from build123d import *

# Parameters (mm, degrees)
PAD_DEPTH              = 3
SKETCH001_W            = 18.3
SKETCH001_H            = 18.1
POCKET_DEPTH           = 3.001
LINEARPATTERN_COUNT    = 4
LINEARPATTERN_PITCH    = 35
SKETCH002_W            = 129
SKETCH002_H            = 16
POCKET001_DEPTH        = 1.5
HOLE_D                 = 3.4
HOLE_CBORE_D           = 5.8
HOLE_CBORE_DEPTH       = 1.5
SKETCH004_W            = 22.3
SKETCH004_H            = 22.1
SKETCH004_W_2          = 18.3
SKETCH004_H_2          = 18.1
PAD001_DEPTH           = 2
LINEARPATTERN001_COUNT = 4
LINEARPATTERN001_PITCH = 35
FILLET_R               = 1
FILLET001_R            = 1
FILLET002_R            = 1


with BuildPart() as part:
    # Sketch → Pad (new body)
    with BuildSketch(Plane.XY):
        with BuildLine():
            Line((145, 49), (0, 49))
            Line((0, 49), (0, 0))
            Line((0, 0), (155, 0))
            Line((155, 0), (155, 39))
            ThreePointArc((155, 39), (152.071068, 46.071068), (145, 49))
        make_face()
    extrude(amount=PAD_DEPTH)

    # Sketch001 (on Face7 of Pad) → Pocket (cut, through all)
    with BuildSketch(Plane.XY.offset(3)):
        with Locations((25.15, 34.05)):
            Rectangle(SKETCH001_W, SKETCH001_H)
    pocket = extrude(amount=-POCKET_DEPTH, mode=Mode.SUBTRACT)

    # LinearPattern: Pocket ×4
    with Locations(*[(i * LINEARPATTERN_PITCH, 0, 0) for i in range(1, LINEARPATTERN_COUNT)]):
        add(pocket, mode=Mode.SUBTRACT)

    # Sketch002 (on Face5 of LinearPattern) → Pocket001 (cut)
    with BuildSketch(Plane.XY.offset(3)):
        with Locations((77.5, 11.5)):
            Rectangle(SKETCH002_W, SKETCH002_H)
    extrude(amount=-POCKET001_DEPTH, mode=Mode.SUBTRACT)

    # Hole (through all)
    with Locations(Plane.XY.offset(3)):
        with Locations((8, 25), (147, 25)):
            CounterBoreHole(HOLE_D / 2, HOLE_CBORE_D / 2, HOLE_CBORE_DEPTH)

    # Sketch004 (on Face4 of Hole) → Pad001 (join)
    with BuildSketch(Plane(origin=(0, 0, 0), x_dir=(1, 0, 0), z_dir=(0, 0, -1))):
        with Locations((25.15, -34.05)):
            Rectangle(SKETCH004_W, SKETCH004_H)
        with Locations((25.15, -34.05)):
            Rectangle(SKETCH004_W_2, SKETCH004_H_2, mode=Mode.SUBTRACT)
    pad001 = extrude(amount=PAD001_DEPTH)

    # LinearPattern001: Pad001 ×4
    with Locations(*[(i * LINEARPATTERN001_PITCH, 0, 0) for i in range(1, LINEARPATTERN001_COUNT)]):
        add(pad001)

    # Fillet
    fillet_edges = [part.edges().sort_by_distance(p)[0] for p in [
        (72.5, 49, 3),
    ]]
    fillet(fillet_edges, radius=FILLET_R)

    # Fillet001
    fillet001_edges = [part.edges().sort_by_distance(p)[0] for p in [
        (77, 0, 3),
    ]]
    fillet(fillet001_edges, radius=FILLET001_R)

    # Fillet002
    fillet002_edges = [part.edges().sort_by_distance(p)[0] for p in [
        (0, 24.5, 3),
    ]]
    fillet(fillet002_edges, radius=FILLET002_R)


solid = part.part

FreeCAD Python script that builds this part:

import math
import FreeCAD as App
import Part
import Sketcher
Q = App.Units.Quantity


def edges_at(feature, points):
    """Names of the edges that pass closest to the given points."""
    edges = feature.Shape.Edges
    near = lambda p: min(range(len(edges)), key=lambda i: edges[i].distToShape(Part.Vertex(*p))[0])
    return sorted({f"Edge{near(p) + 1}" for p in points})


def add_polygon(sketch, points):
    """Adds a closed chain of lines whose ends are joined by coincident constraints."""
    first, n = sketch.GeometryCount, len(points)
    for a, b in zip(points, points[1:] + points[:1]):
        sketch.addGeometry(Part.LineSegment(App.Vector(*a, 0), App.Vector(*b, 0)), False)
    for i in range(n):
        sketch.addConstraint(Sketcher.Constraint("Coincident", first + i, 2, first + (i + 1) % n, 1))

doc = App.newDocument("Part")
body = doc.addObject("PartDesign::Body", "Body")

# Sketch on XY plane
sketch1 = body.newObject("Sketcher::SketchObject", "Sketch")
sketch1.AttachmentSupport = (doc.getObject("XY_Plane"), [""])
sketch1.MapMode = "FlatFace"
sketch1.addGeometry([
    Part.LineSegment(App.Vector(145, 49, 0), App.Vector(0, 49, 0)),  # 0
    Part.LineSegment(App.Vector(0, 49, 0), App.Vector(0, 0, 0)),  # 1
    Part.LineSegment(App.Vector(0, 0, 0), App.Vector(155, 0, 0)),  # 2
    Part.LineSegment(App.Vector(155, 0, 0), App.Vector(155, 39, 0)),  # 3
    Part.ArcOfCircle(Part.Circle(App.Vector(145, 39, 0), App.Vector(0, 0, 1), 10), math.radians(0), math.radians(90)),  # 4
], False)
sketch1.addConstraint([
    Sketcher.Constraint("Coincident", 0, 2, 1, 1),
    Sketcher.Constraint("Coincident", 1, 2, 2, 1),
    Sketcher.Constraint("Coincident", 2, 2, 3, 1),
    Sketcher.Constraint("Tangent", 3, 2, 4, 1),
    Sketcher.Constraint("Tangent", 4, 2, 0, 1),
    Sketcher.Constraint("Horizontal", 0),
    Sketcher.Constraint("Vertical", 1),
    Sketcher.Constraint("Horizontal", 2),
    Sketcher.Constraint("Vertical", 3),
    Sketcher.Constraint("Coincident", 1, 2, -1, 1),
    Sketcher.Constraint("Radius", 4, Q("9.999999 mm")),
    Sketcher.Constraint("DistanceX", 0, 2, 0, 1, Q("145 mm")),
    Sketcher.Constraint("DistanceY", 1, 2, 1, 1, Q("49 mm")),
])
pad1 = body.newObject("PartDesign::Pad", "Pad")
pad1.Profile = sketch1
pad1.Length = 3

# Sketch on XY plane
sketch2 = body.newObject("Sketcher::SketchObject", "Sketch001")
sketch2.AttachmentSupport = (doc.getObject("XY_Plane"), [""])
sketch2.MapMode = "FlatFace"
sketch2.AttachmentOffset = App.Placement(App.Vector(0, 0, 3), App.Rotation())
add_polygon(sketch2, [(16, 43), (16, 25), (34, 25), (34, 43)])  # lines 0-3
sketch2.addConstraint([
    Sketcher.Constraint("Vertical", 0),
    Sketcher.Constraint("Horizontal", 1),
    Sketcher.Constraint("Vertical", 2),
    Sketcher.Constraint("Horizontal", 3),
    Sketcher.Constraint("DistanceX", 1, 1, 1, 2, Q("18.3 mm")),
    Sketcher.Constraint("DistanceY", 0, 2, 0, 1, Q("18.1 mm")),
    Sketcher.Constraint("DistanceX", -1, 1, 0, 2, Q("16 mm")),
    Sketcher.Constraint("DistanceY", -1, 1, 0, 2, Q("25 mm")),
])
pocket1 = body.newObject("PartDesign::Pocket", "Pocket")
pocket1.Profile = sketch2
pocket1.Type = "ThroughAll"
doc.recompute()

linearpattern = body.newObject("PartDesign::LinearPattern", "LinearPattern")
linearpattern.Originals = [pocket1]
linearpattern.Direction = (doc.getObject("X_Axis"), [""])
linearpattern.Mode = "offset"
linearpattern.Offset = 35
linearpattern.Occurrences = 4
body.Tip = linearpattern

# Sketch on XY plane
sketch3 = body.newObject("Sketcher::SketchObject", "Sketch002")
sketch3.AttachmentSupport = (doc.getObject("XY_Plane"), [""])
sketch3.MapMode = "FlatFace"
sketch3.AttachmentOffset = App.Placement(App.Vector(0, 0, 3), App.Rotation())
add_polygon(sketch3, [(13, 20), (13, 4), (142, 4), (142, 20)])  # lines 0-3
sketch3.addConstraint([
    Sketcher.Constraint("Vertical", 0),
    Sketcher.Constraint("Horizontal", 1),
    Sketcher.Constraint("Vertical", 2),
    Sketcher.Constraint("Horizontal", 3),
    Sketcher.Constraint("DistanceX", 1, 1, 1, 2, Q("129 mm")),
    Sketcher.Constraint("DistanceY", 0, 2, 0, 1, Q("16 mm")),
    Sketcher.Constraint("DistanceX", -1, 1, 0, 2, Q("13 mm")),
    Sketcher.Constraint("DistanceY", -1, 1, 0, 2, Q("3.5 mm")),
])
pocket2 = body.newObject("PartDesign::Pocket", "Pocket001")
pocket2.Profile = sketch3
pocket2.Length = 1.5

# Sketch on XY plane
sketch4 = body.newObject("Sketcher::SketchObject", "Sketch003")
sketch4.AttachmentSupport = (doc.getObject("XY_Plane"), [""])
sketch4.MapMode = "FlatFace"
sketch4.AttachmentOffset = App.Placement(App.Vector(0, 0, 3), App.Rotation())
sketch4.addGeometry([
    Part.Circle(App.Vector(8, 25, 0), App.Vector(0, 0, 1), 1.7),
    Part.Circle(App.Vector(147, 25, 0), App.Vector(0, 0, 1), 1.7),
], False)
sketch4.addConstraint([
    Sketcher.Constraint("Equal", 0, 1),
    Sketcher.Constraint("Horizontal", 0, 3, 1, 3),
    Sketcher.Constraint("Diameter", 0, Q("3.4 mm")),
    Sketcher.Constraint("DistanceX", -1, 1, 0, 3, Q("8 mm")),
    Sketcher.Constraint("DistanceY", -1, 1, 0, 3, Q("25 mm")),
    Sketcher.Constraint("DistanceX", -1, 1, 1, 3, Q("147 mm")),
])
doc.recompute()
hole = body.newObject("PartDesign::Hole", "Hole")
hole.Profile = sketch4
hole.ThreadType = "None"
hole.Diameter = 3.4
hole.DepthType = "ThroughAll"
hole.HoleCutType = "Counterbore"
hole.HoleCutDiameter = 5.8
hole.HoleCutDepth = 1.5

# Sketch on XY plane
sketch5 = body.newObject("Sketcher::SketchObject", "Sketch004")
sketch5.AttachmentSupport = (doc.getObject("XY_Plane"), [""])
sketch5.MapMode = "FlatFace"
add_polygon(sketch5, [(14, 23), (14, 45), (36, 45), (36, 23)])  # lines 0-3
add_polygon(sketch5, [(34, 43), (16, 43), (16, 25), (34, 25)])  # lines 4-7
sketch5.addConstraint([
    Sketcher.Constraint("Vertical", 0),
    Sketcher.Constraint("Horizontal", 1),
    Sketcher.Constraint("Vertical", 2),
    Sketcher.Constraint("Horizontal", 3),
    Sketcher.Constraint("Horizontal", 4),
    Sketcher.Constraint("Vertical", 5),
    Sketcher.Constraint("Horizontal", 6),
    Sketcher.Constraint("Vertical", 7),
    Sketcher.Constraint("DistanceX", 1, 1, 1, 2, Q("22.3 mm")),
    Sketcher.Constraint("DistanceX", 4, 2, 4, 1, Q("18.3 mm")),
    Sketcher.Constraint("DistanceY", 0, 1, 0, 2, Q("22.1 mm")),
    Sketcher.Constraint("DistanceY", 5, 2, 5, 1, Q("18.1 mm")),
    Sketcher.Constraint("DistanceX", -1, 1, 0, 2, Q("14 mm")),
    Sketcher.Constraint("DistanceY", -1, 1, 2, 2, Q("23 mm")),
    Sketcher.Constraint("DistanceX", -1, 1, 4, 2, Q("16 mm")),
    Sketcher.Constraint("DistanceY", -1, 1, 5, 2, Q("25 mm")),
])
pad2 = body.newObject("PartDesign::Pad", "Pad001")
pad2.Profile = sketch5
pad2.Length = 2
pad2.Reversed = True
doc.recompute()

linearpattern2 = body.newObject("PartDesign::LinearPattern", "LinearPattern001")
linearpattern2.Originals = [pad2]
linearpattern2.Direction = (doc.getObject("X_Axis"), [""])
linearpattern2.Mode = "offset"
linearpattern2.Offset = 35
linearpattern2.Occurrences = 4
body.Tip = linearpattern2
doc.recompute()

fillet = body.newObject("PartDesign::Fillet", "Fillet")
fillet.Base = (linearpattern2, edges_at(linearpattern2, [(72.5, 49, 3)]))
fillet.Radius = 1
doc.recompute()

fillet2 = body.newObject("PartDesign::Fillet", "Fillet001")
fillet2.Base = (fillet, edges_at(fillet, [(77, 0, 3)]))
fillet2.Radius = 1
doc.recompute()

fillet3 = body.newObject("PartDesign::Fillet", "Fillet002")
fillet3.Base = (fillet2, edges_at(fillet2, [(0, 24.5, 3)]))
fillet3.Radius = 1

doc.recompute()
